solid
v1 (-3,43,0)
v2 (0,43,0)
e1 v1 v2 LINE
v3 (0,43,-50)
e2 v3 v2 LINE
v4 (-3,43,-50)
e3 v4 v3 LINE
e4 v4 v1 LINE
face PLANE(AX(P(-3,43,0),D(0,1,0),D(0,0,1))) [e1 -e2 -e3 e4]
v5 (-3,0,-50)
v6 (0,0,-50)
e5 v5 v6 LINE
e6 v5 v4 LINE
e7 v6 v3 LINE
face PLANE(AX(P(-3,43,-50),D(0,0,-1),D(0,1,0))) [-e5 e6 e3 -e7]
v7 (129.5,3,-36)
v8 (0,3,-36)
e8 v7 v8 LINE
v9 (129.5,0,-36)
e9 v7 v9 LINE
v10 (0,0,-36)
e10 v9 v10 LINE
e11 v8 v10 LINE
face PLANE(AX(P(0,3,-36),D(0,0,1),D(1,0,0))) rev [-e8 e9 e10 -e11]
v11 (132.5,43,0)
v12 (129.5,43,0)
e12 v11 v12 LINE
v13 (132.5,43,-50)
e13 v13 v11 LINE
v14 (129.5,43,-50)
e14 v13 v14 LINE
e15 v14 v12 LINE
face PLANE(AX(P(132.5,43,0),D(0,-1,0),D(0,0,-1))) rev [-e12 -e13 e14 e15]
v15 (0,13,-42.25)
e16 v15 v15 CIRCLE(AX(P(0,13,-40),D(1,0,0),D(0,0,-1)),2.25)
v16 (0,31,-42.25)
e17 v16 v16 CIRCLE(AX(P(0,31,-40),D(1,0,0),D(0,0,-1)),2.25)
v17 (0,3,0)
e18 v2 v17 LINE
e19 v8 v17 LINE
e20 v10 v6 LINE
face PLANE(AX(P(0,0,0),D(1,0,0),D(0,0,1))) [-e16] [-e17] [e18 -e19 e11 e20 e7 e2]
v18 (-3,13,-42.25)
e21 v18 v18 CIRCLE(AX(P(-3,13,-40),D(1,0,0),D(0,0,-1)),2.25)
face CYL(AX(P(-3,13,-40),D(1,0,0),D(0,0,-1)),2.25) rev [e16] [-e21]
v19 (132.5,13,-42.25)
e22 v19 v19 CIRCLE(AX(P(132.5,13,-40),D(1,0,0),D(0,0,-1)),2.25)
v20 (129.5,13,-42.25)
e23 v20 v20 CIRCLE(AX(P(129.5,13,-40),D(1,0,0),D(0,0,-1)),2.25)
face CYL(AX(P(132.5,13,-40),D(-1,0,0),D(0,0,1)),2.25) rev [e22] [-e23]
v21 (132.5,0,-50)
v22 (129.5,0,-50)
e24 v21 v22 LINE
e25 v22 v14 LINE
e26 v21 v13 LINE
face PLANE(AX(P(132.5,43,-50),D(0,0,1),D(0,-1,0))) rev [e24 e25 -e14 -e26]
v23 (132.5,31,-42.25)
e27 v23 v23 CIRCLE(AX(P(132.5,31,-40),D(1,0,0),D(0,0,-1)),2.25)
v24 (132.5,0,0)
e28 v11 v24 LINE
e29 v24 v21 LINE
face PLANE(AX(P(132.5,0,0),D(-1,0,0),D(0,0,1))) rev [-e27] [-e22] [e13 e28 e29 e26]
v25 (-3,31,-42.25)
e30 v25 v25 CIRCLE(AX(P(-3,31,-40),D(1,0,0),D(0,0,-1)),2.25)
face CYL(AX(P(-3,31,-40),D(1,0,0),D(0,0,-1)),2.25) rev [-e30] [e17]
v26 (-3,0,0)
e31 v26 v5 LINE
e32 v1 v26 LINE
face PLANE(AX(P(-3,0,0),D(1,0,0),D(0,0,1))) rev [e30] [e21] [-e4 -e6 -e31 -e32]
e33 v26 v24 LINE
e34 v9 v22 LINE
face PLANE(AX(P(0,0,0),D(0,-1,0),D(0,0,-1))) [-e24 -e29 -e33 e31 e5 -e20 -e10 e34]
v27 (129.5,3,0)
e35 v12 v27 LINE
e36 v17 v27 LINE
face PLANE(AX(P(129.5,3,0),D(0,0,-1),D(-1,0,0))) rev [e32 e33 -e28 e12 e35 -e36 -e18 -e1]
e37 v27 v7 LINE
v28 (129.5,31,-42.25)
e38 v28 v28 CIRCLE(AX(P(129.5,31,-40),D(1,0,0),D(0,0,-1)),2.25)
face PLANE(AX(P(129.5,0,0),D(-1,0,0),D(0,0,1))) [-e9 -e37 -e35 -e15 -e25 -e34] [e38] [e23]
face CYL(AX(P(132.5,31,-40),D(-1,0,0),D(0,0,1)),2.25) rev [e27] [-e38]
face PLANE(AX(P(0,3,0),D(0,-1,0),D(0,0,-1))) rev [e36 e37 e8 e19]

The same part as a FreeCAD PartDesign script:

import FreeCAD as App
import Part
import Sketcher
Q = App.Units.Quantity

doc = App.newDocument("Part")
body = doc.addObject("PartDesign::Body", "Body")

# Sketch on XZ plane
sketch1 = body.newObject("Sketcher::SketchObject", "Sketch")
sketch1.AttachmentSupport = (doc.getObject("XZ_Plane"), [""])
sketch1.MapMode = "FlatFace"
sketch1.addGeometry([
    Part.LineSegment(App.Vector(0, -36, 0), App.Vector(0, 0, 0)),
    Part.LineSegment(App.Vector(0, 0, 0), App.Vector(129.5, 0, 0)),
    Part.LineSegment(App.Vector(129.5, 0, 0), App.Vector(129.5, -36, 0)),
    Part.LineSegment(App.Vector(129.5, -36, 0), App.Vector(0, -36, 0)),
], False)
sketch1.addConstraint([
    Sketcher.Constraint("Coincident", 0, 2, 1, 1),
    Sketcher.Constraint("Coincident", 1, 2, 2, 1),
    Sketcher.Constraint("Coincident", 2, 2, 3, 1),
    Sketcher.Constraint("Coincident", 3, 2, 0, 1),
    Sketcher.Constraint("Vertical", 0),
    Sketcher.Constraint("Horizontal", 1),
    Sketcher.Constraint("Vertical", 2),
    Sketcher.Constraint("Horizontal", 3),
    Sketcher.Constraint("Coincident", 0, 2, -1, 1),
    Sketcher.Constraint("DistanceY", 0, 1, 0, 2, Q("36 mm")),
    Sketcher.Constraint("DistanceX", 1, 1, 1, 2, Q("129.5 mm")),
])
pad1 = body.newObject("PartDesign::Pad", "Pad")
pad1.Profile = sketch1
pad1.Length = 3
pad1.Reversed = True

# Sketch on YZ plane
sketch2 = body.newObject("Sketcher::SketchObject", "Sketch001")
sketch2.AttachmentSupport = (doc.getObject("YZ_Plane"), [""])
sketch2.MapMode = "FlatFace"
sketch2.AttachmentOffset = App.Placement(App.Vector(0, 0, 129.5), App.Rotation())
sketch2.addGeometry([
    Part.LineSegment(App.Vector(43, 0, 0), App.Vector(0, 0, 0)),  # 0
    Part.LineSegment(App.Vector(0, 0, 0), App.Vector(0, -50, 0)),  # 1
    Part.LineSegment(App.Vector(0, -50, 0), App.Vector(43, -50, 0)),  # 2
    Part.LineSegment(App.Vector(43, -50, 0), App.Vector(43, 0, 0)),  # 3
    Part.Circle(App.Vector(13, -40, 0), App.Vector(0, 0, 1), 2.25),  # 4
    Part.Circle(App.Vector(31, -40, 0), App.Vector(0, 0, 1), 2.25),  # 5
], False)
sketch2.addConstraint([
    Sketcher.Constraint("Coincident", 0, 2, 1, 1),
    Sketcher.Constraint("Coincident", 1, 2, 2, 1),
    Sketcher.Constraint("Coincident", 2, 2, 3, 1),
    Sketcher.Constraint("Coincident", 3, 2, 0, 1),
    Sketcher.Constraint("Horizontal", 0),
    Sketcher.Constraint("Vertical", 1),
    Sketcher.Constraint("Horizontal", 2),
    Sketcher.Constraint("Vertical", 3),
    Sketcher.Constraint("Coincident", 0, 2, -1, 1),
    Sketcher.Constraint("Equal", 4, 5),
    Sketcher.Constraint("Horizontal", 4, 3, 5, 3),
    Sketcher.Constraint("Diameter", 4, Q("4.5 mm")),
    Sketcher.Constraint("DistanceX", 0, 2, 0, 1, Q("43 mm")),
    Sketcher.Constraint("DistanceY", 1, 2, 1, 1, Q("50 mm")),
    Sketcher.Constraint("DistanceX", -1, 1, 4, 3, Q("13 mm")),
    Sketcher.Constraint("DistanceY", 4, 3, -1, 1, Q("40 mm")),
    Sketcher.Constraint("DistanceX", -1, 1, 5, 3, Q("31 mm")),
])
pad2 = body.newObject("PartDesign::Pad", "Pad001")
pad2.Profile = sketch2
pad2.Length = 3
doc.recompute()

datumplane = body.newObject("PartDesign::Plane", "DatumPlane")
datumplane.AttachmentSupport = (doc.getObject("YZ_Plane"), [""])
datumplane.MapMode = "FlatFace"
datumplane.AttachmentOffset = App.Placement(App.Vector(0, 0, 64.75), App.Rotation())
mirrored = body.newObject("PartDesign::Mirrored", "Mirrored")
mirrored.Originals = [pad2]
mirrored.MirrorPlane = (datumplane, [""])
body.Tip = mirrored

doc.recompute()
